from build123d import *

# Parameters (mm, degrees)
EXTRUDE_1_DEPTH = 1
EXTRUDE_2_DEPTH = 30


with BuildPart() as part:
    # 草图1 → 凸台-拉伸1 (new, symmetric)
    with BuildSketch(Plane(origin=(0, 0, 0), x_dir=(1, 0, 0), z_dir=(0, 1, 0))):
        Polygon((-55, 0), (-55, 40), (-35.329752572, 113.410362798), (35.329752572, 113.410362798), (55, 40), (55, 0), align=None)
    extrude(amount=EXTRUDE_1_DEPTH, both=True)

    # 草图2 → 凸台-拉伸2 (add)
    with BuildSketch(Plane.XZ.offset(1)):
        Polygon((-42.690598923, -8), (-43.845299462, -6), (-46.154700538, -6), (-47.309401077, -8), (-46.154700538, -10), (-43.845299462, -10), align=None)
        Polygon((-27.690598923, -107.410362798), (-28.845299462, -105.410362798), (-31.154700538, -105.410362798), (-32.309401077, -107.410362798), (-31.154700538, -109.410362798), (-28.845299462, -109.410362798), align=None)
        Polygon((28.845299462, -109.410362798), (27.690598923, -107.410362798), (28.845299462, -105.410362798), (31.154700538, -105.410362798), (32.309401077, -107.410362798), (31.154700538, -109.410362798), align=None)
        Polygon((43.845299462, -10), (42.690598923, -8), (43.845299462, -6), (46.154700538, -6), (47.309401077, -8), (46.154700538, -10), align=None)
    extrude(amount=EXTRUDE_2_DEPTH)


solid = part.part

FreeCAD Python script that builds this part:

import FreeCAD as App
import Part
import Sketcher
Q = App.Units.Quantity


def add_polygon(sketch, points):
    """Adds a closed chain of lines whose ends are joined by coincident constraints."""
    first, n = sketch.GeometryCount, len(points)
    for a, b in zip(points, points[1:] + points[:1]):
        sketch.addGeometry(Part.LineSegment(App.Vector(*a, 0), App.Vector(*b, 0)), False)
    for i in range(n):
        sketch.addConstraint(Sketcher.Constraint("Coincident", first + i, 2, first + (i + 1) % n, 1))

doc = App.newDocument("Part")
body = doc.addObject("PartDesign::Body", "Body")

sketch1 = body.newObject("Sketcher::SketchObject", "Sketch")
sketch1.AttachmentSupport = (doc.getObject("XZ_Plane"), [""])
sketch1.MapMode = "FlatFace"
add_polygon(sketch1, [(-55, -40), (-55, 0), (55, 0), (55, -40), (35, -113), (-35, -113)])
sketch1.addConstraint([
    Sketcher.Constraint("Vertical", 0),
    Sketcher.Constraint("Horizontal", 1),
    Sketcher.Constraint("Vertical", 2),
    Sketcher.Constraint("Horizontal", 4),
    Sketcher.Constraint("Symmetric", 0, 2, 1, 2, -1, 1),
    Sketcher.Constraint("Horizontal", 2, 2, 5, 2),
    Sketcher.Constraint("Equal", 3, 5),
    Sketcher.Constraint("DistanceX", 1, 1, 1, 2, Q("110 mm")),
    Sketcher.Constraint("DistanceY", 0, 1, 0, 2, Q("40 mm")),
    Sketcher.Constraint("Angle", 3, Q("-105 deg")),
    Sketcher.Constraint("Distance", 3, Q("76 mm")),
])
pad1 = body.newObject("PartDesign::Pad", "Pad")
pad1.Profile = sketch1
pad1.Length = 2
pad1.Midplane = True

sketch2 = body.newObject("Sketcher::SketchObject", "Sketch001")
sketch2.AttachmentSupport = (doc.getObject("XZ_Plane"), [""])
sketch2.MapMode = "FlatFace"
sketch2.AttachmentOffset = App.Placement(App.Vector(0, 0, 1), App.Rotation())
add_polygon(sketch2, [(-42.7, -8), (-43.8, -6), (-46.2, -6), (-47.3, -8), (-46.2, -10), (-43.8, -10)])
add_polygon(sketch2, [(-27.7, -107.4), (-28.8, -105.4), (-31.2, -105.4), (-32.3, -107.4), (-31.2, -109.4), (-28.8, -109.4)])
add_polygon(sketch2, [(27.7, -107.4), (28.8, -109.4), (31.2, -109.4), (32.3, -107.4), (31.2, -105.4), (28.8, -105.4)])
add_polygon(sketch2, [(42.7, -8), (43.8, -10), (46.2, -10), (47.3, -8), (46.2, -6), (43.8, -6)])
sketch2.addConstraint([
    Sketcher.Constraint("Horizontal", 1),
    Sketcher.Constraint("Horizontal", 4),
    Sketcher.Constraint("Horizontal", 7),
    Sketcher.Constraint("Horizontal", 10),
    Sketcher.Constraint("Horizontal", 13),
    Sketcher.Constraint("Horizontal", 16),
    Sketcher.Constraint("Horizontal", 19),
    Sketcher.Constraint("Horizontal", 22),
    Sketcher.Constraint("Symmetric", 10, 2, 12, 2, -2),
    Sketcher.Constraint("Symmetric", 8, 2, 14, 2, -2),
    Sketcher.Constraint("Symmetric", 7, 2, 15, 2, -2),
    Sketcher.Constraint("Symmetric", 11, 2, 17, 2, -2),
    Sketcher.Constraint("Symmetric", 4, 2, 18, 2, -2),
    Sketcher.Constraint("Symmetric", 2, 2, 20, 2, -2),
    Sketcher.Constraint("Symmetric", 1, 2, 21, 2, -2),
    Sketcher.Constraint("Symmetric", 5, 2, 23, 2, -2),
    Sketcher.Constraint("Parallel", 0, 3),
    Sketcher.Constraint("Parallel", 2, 5),
    Sketcher.Constraint("Parallel", 3, 6),
    Sketcher.Constraint("Parallel", 5, 8),
    Sketcher.Constraint("Parallel", 6, 9),
    Sketcher.Constraint("Parallel", 8, 11),
    Sketcher.Constraint("Parallel", 9, 12),
    Sketcher.Constraint("Parallel", 11, 14),
    Sketcher.Constraint("Parallel", 14, 17),
    Sketcher.Constraint("Parallel", 17, 20),
    Sketcher.Constraint("Parallel", 20, 23),
    Sketcher.Constraint("Horizontal", 2, 2, 5, 2),
    Sketcher.Constraint("Horizontal", 8, 2, 11, 2),
    Sketcher.Constraint("Vertical", 1, 2, 3, 2),
    Sketcher.Constraint("Vertical", 7, 2, 9, 2),
    Sketcher.Constraint("Equal", 4, 7),
    Sketcher.Constraint("Equal", 5, 6),
    Sketcher.Constraint("Angle", 0, Q("120 deg")),
    Sketcher.Constraint("DistanceY", 0, 2, -1, 1, Q("6 mm")),
    Sketcher.Constraint("DistanceY", 2, 2, -1, 1, Q("8 mm")),
    Sketcher.Constraint("DistanceX", 4, 2, 6, 2, Q("15 mm")),
    Sketcher.Constraint("DistanceX", 9, 2, 12, 2, Q("60 mm")),
    Sketcher.Constraint("DistanceX", 1, 2, 1, 1, Q("2.309401 mm")),
    Sketcher.Constraint("DistanceY", 6, 2, -1, 1, Q("105.410363 mm")),
])
pad2 = body.newObject("PartDesign::Pad", "Pad001")
pad2.Profile = sketch2
pad2.Length = 30

doc.recompute()
